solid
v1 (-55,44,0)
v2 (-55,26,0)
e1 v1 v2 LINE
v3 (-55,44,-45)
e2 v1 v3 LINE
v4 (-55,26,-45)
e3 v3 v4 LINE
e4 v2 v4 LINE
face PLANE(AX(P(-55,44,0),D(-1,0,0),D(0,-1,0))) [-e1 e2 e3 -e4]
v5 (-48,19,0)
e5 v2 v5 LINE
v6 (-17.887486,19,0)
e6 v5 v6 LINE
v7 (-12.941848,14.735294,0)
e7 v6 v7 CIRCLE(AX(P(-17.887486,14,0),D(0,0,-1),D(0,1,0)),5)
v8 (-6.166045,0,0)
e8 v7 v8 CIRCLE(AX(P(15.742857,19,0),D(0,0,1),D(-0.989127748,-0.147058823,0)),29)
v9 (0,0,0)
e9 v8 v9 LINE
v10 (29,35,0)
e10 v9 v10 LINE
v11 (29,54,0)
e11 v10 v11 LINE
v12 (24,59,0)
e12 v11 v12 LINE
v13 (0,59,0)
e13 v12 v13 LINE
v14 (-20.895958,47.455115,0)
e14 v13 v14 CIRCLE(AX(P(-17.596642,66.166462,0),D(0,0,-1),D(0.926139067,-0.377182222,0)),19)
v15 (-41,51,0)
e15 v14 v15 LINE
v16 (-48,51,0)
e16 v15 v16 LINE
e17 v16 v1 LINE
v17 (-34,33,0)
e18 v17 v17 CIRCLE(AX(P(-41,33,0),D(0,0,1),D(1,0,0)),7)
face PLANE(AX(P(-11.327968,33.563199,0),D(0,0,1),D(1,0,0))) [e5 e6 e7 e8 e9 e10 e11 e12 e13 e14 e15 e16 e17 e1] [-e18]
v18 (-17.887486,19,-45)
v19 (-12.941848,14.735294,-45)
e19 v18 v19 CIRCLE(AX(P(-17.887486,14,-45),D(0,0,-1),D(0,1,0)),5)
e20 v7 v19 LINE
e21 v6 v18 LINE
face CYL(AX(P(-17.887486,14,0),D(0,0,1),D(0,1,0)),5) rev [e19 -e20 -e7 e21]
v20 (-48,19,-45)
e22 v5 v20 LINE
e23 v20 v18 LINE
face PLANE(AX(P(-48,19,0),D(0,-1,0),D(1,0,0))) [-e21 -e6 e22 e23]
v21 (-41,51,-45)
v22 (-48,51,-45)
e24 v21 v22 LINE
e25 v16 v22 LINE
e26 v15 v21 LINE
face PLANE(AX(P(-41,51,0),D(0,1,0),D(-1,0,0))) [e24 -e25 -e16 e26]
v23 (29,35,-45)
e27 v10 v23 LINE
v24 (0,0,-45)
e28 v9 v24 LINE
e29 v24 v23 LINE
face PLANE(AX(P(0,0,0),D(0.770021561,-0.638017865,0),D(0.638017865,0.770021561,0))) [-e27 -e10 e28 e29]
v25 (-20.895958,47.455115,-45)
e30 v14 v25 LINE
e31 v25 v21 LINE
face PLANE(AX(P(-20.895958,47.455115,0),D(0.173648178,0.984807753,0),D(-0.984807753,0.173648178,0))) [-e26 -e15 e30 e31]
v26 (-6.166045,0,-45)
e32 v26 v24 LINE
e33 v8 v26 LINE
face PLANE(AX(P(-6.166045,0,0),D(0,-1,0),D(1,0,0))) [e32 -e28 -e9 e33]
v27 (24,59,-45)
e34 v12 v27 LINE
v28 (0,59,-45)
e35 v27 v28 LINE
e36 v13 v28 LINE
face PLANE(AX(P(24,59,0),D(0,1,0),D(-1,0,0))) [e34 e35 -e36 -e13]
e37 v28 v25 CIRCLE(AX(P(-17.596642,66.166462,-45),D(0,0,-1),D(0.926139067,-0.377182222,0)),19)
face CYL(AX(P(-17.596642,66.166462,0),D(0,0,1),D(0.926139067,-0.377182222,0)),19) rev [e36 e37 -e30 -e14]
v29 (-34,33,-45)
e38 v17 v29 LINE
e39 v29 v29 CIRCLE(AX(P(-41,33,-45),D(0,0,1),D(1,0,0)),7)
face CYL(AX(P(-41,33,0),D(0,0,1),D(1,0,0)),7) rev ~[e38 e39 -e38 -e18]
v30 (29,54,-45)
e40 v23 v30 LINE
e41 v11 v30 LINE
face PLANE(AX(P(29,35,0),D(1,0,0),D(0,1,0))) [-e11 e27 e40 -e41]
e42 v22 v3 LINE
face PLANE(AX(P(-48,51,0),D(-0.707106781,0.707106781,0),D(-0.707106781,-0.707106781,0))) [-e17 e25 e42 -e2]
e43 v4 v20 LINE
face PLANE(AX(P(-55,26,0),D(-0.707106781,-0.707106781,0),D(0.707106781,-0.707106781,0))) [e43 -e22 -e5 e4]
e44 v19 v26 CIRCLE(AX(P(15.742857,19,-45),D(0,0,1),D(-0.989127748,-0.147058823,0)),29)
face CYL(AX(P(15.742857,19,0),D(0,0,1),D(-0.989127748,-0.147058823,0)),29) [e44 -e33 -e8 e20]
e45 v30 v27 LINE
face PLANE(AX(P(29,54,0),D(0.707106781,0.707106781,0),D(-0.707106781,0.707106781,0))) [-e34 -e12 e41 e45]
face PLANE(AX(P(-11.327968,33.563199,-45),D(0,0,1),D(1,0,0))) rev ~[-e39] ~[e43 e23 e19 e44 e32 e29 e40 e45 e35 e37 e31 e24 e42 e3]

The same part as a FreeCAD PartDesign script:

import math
import FreeCAD as App
import Part
import Sketcher
from FreeCAD import Vector
Q = App.Units.Quantity

doc = App.newDocument("Part")
body = doc.addObject("PartDesign::Body", "Body")

# Sketch on XY plane
sketch1 = body.newObject("Sketcher::SketchObject", "Sketch")
sketch1.AttachmentSupport = (doc.getObject("XY_Plane"), [""])
sketch1.MapMode = "FlatFace"
sketch1.addGeometry(Part.LineSegment(Vector(0, 0, 0), Vector(29, 35, 0)), False)
sketch1.addGeometry(Part.LineSegment(Vector(29, 35, 0), Vector(29, 54, 0)), False)
sketch1.addGeometry(Part.LineSegment(Vector(29, 54, 0), Vector(24, 59, 0)), False)
sketch1.addGeometry(Part.LineSegment(Vector(24, 59, 0), Vector(0, 59, 0)), False)
sketch1.addGeometry(Part.ArcOfCircle(Part.Circle(Vector(-17.596642, 66.166462, 0), Vector(0, 0, 1), 19), math.radians(-100), math.radians(-22.159252)), False)
sketch1.addGeometry(Part.LineSegment(Vector(-20.895958, 47.455115, 0), Vector(-41, 51, 0)), False)
sketch1.addGeometry(Part.LineSegment(Vector(-41, 51, 0), Vector(-48, 51, 0)), False)
sketch1.addGeometry(Part.LineSegment(Vector(-48, 51, 0), Vector(-55, 44, 0)), False)
sketch1.addGeometry(Part.LineSegment(Vector(-55, 44, 0), Vector(-55, 26, 0)), False)
sketch1.addGeometry(Part.LineSegment(Vector(-55, 26, 0), Vector(-48, 19, 0)), False)
sketch1.addGeometry(Part.LineSegment(Vector(-48, 19, 0), Vector(-17.887486, 19, 0)), False)
sketch1.addGeometry(Part.ArcOfCircle(Part.Circle(Vector(-17.887486, 14, 0), Vector(0, 0, 1), 5), math.radians(8.456519), math.radians(90)), False)
sketch1.addGeometry(Part.ArcOfCircle(Part.Circle(Vector(15.742857, 19, 0), Vector(0, 0, 1), 29), math.radians(-171.543481), math.radians(-139.067275)), False)
sketch1.addGeometry(Part.LineSegment(Vector(-6.166045, 0, 0), Vector(0, 0, 0)), False)
sketch1.addGeometry(Part.Circle(Vector(-41, 33, 0), Vector(0, 0, 1), 7), False)
sketch1.addConstraint(Sketcher.Constraint("Coincident", 0, 2, 1, 1))
sketch1.addConstraint(Sketcher.Constraint("Coincident", 1, 2, 2, 1))
sketch1.addConstraint(Sketcher.Constraint("Coincident", 2, 2, 3, 1))
sketch1.addConstraint(Sketcher.Constraint("Coincident", 3, 2, 4, 2))
sketch1.addConstraint(Sketcher.Constraint("Tangent", 4, 1, 5, 1))
sketch1.addConstraint(Sketcher.Constraint("Coincident", 5, 2, 6, 1))
sketch1.addConstraint(Sketcher.Constraint("Coincident", 6, 2, 7, 1))
sketch1.addConstraint(Sketcher.Constraint("Coincident", 7, 2, 8, 1))
sketch1.addConstraint(Sketcher.Constraint("Coincident", 8, 2, 9, 1))
sketch1.addConstraint(Sketcher.Constraint("Coincident", 9, 2, 10, 1))
sketch1.addConstraint(Sketcher.Constraint("Tangent", 10, 2, 11, 2))
sketch1.addConstraint(Sketcher.Constraint("Tangent", 11, 1, 12, 1))
sketch1.addConstraint(Sketcher.Constraint("Coincident", 12, 2, 13, 1))
sketch1.addConstraint(Sketcher.Constraint("Coincident", 13, 2, 0, 1))
sketch1.addConstraint(Sketcher.Constraint("Vertical", 1))
sketch1.addConstraint(Sketcher.Constraint("Horizontal", 3))
sketch1.addConstraint(Sketcher.Constraint("Horizontal", 6))
sketch1.addConstraint(Sketcher.Constraint("Vertical", 8))
sketch1.addConstraint(Sketcher.Constraint("Horizontal", 10))
sketch1.addConstraint(Sketcher.Constraint("Horizontal", 13))
sketch1.addConstraint(Sketcher.Constraint("Coincident", 13, 2, -1, 1))
sketch1.addConstraint(Sketcher.Constraint("PointOnObject", 3, 2, -2))
sketch1.addConstraint(Sketcher.Constraint("Perpendicular", 2, 7))
sketch1.addConstraint(Sketcher.Constraint("Perpendicular", 7, 9))
sketch1.addConstraint(Sketcher.Constraint("Horizontal", 12, 3, 9, 2))
sketch1.addConstraint(Sketcher.Constraint("Vertical", 14, 3, 5, 2))
sketch1.addConstraint(Sketcher.Constraint("Vertical", 6, 2, 9, 2))
sketch1.addConstraint(Sketcher.Constraint("Equal", 7, 9))
sketch1.addConstraint(Sketcher.Constraint("Diameter", 14, 14.0))
sketch1.addConstraint(Sketcher.Constraint("Radius", 4, 19.0))
sketch1.addConstraint(Sketcher.Constraint("Radius", 11, 5.0))
sketch1.addConstraint(Sketcher.Constraint("Radius", 12, 29.0))
sketch1.addConstraint(Sketcher.Constraint("DistanceX", 3, 2, 3, 1, 24.0))
sketch1.addConstraint(Sketcher.Constraint("DistanceX", 6, 2, 6, 1, 7.0))
sketch1.addConstraint(Sketcher.Constraint("DistanceY", 1, 1, 1, 2, 19.0))
sketch1.addConstraint(Sketcher.Constraint("DistanceY", 8, 2, 8, 1, 18.0))
sketch1.addConstraint(Sketcher.Constraint("Angle", 5, Q("170 deg")))
sketch1.addConstraint(Sketcher.Constraint("DistanceY", -1, 1, 11, 3, 14.0))
sketch1.addConstraint(Sketcher.Constraint("DistanceX", 14, 3, -1, 1, 41.0))
sketch1.addConstraint(Sketcher.Constraint("DistanceY", -1, 1, 14, 3, 33.0))
sketch1.addConstraint(Sketcher.Constraint("DistanceX", -1, 1, 0, 2, 29.0))
sketch1.addConstraint(Sketcher.Constraint("DistanceY", -1, 1, 0, 2, 35.0))
sketch1.addConstraint(Sketcher.Constraint("DistanceY", -1, 1, 5, 2, 51.0))
sketch1.addConstraint(Sketcher.Constraint("DistanceX", 4, 3, 12, 3, 33.339499))
pad1 = body.newObject("PartDesign::Pad", "Pad")
pad1.Profile = sketch1
pad1.Length = 45
pad1.Reversed = True

doc.recompute()
